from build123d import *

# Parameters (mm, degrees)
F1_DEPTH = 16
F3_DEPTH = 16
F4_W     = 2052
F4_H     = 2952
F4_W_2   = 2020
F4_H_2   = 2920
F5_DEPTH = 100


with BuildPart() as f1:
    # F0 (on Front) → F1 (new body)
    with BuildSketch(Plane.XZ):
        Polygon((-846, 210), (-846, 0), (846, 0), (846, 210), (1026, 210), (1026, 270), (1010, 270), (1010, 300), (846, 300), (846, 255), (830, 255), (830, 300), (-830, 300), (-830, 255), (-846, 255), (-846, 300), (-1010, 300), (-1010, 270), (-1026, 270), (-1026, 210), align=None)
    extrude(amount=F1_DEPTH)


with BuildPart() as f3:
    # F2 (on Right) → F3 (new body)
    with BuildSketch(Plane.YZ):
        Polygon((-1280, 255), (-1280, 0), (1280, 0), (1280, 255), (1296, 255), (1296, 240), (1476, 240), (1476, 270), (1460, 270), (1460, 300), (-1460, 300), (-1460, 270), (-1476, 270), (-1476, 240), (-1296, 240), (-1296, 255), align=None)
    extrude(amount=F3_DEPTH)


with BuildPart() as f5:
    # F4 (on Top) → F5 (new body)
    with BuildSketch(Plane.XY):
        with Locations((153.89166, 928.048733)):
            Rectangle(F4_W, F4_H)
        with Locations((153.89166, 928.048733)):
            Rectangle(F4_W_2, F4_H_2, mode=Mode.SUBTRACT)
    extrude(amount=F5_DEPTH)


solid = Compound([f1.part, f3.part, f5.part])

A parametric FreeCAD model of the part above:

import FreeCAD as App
import Part
import Sketcher
Q = App.Units.Quantity


def add_polygon(sketch, points):
    """Adds a closed chain of lines whose ends are joined by coincident constraints."""
    first, n = sketch.GeometryCount, len(points)
    for a, b in zip(points, points[1:] + points[:1]):
        sketch.addGeometry(Part.LineSegment(App.Vector(*a, 0), App.Vector(*b, 0)), False)
    for i in range(n):
        sketch.addConstraint(Sketcher.Constraint("Coincident", first + i, 2, first + (i + 1) % n, 1))

doc = App.newDocument("Part")
body = doc.addObject("PartDesign::Body", "Body")

# Sketch on XZ plane
sketch1 = body.newObject("Sketcher::SketchObject", "Sketch")
sketch1.AttachmentSupport = (doc.getObject("XZ_Plane"), [""])
sketch1.MapMode = "FlatFace"
add_polygon(sketch1, [(-846, 210), (-846, 0), (846, 0), (846, 210), (1026, 210), (1026, 270), (1010, 270), (1010, 300), (846, 300), (846, 255), (830, 255), (830, 300), (-830, 300), (-830, 255), (-846, 255), (-846, 300), (-1010, 300), (-1010, 270), (-1026, 270), (-1026, 210)])  # lines 0-19
sketch1.addConstraint([
    Sketcher.Constraint("Vertical", 0),
    Sketcher.Constraint("Horizontal", 1),
    Sketcher.Constraint("Vertical", 2),
    Sketcher.Constraint("Horizontal", 3),
    Sketcher.Constraint("Vertical", 4),
    Sketcher.Constraint("Horizontal", 5),
    Sketcher.Constraint("Vertical", 6),
    Sketcher.Constraint("Horizontal", 7),
    Sketcher.Constraint("Vertical", 8),
    Sketcher.Constraint("Horizontal", 9),
    Sketcher.Constraint("Vertical", 10),
    Sketcher.Constraint("Horizontal", 11),
    Sketcher.Constraint("Vertical", 12),
    Sketcher.Constraint("Horizontal", 13),
    Sketcher.Constraint("Vertical", 14),
    Sketcher.Constraint("Horizontal", 15),
    Sketcher.Constraint("Vertical", 16),
    Sketcher.Constraint("Horizontal", 17),
    Sketcher.Constraint("Vertical", 18),
    Sketcher.Constraint("Horizontal", 19),
    Sketcher.Constraint("Symmetric", 0, 2, 1, 2, -1, 1),
    Sketcher.Constraint("Symmetric", 9, 2, 12, 2, -2),
    Sketcher.Constraint("Symmetric", 7, 2, 14, 2, -2),
    Sketcher.Constraint("Symmetric", 5, 2, 16, 2, -2),
    Sketcher.Constraint("Symmetric", 3, 2, 18, 2, -2),
    Sketcher.Constraint("Horizontal", 7, 2, 10, 2),
    Sketcher.Constraint("Vertical", 2, 2, 7, 2),
    Sketcher.Constraint("Equal", 5, 9),
    Sketcher.Constraint("DistanceX", 1, 1, 1, 2, Q("1692 mm")),
    Sketcher.Constraint("DistanceX", 3, 1, 3, 2, Q("180 mm")),
    Sketcher.Constraint("DistanceX", 5, 2, 5, 1, Q("16 mm")),
    Sketcher.Constraint("DistanceY", 0, 2, 0, 1, Q("210 mm")),
    Sketcher.Constraint("DistanceY", 4, 1, 4, 2, Q("60 mm")),
    Sketcher.Constraint("DistanceY", 6, 1, 6, 2, Q("30 mm")),
    Sketcher.Constraint("DistanceY", 8, 2, 8, 1, Q("45 mm")),
])
pad1 = body.newObject("PartDesign::Pad", "Pad")
pad1.Profile = sketch1
pad1.Length = 16
body2 = doc.addObject("PartDesign::Body", "Body001")

# Sketch on YZ plane
sketch2 = body2.newObject("Sketcher::SketchObject", "Sketch001")
sketch2.AttachmentSupport = (doc.getObject("YZ_Plane001"), [""])
sketch2.MapMode = "FlatFace"
add_polygon(sketch2, [(-1280, 255), (-1280, 0), (1280, 0), (1280, 255), (1296, 255), (1296, 240), (1476, 240), (1476, 270), (1460, 270), (1460, 300), (-1460, 300), (-1460, 270), (-1476, 270), (-1476, 240), (-1296, 240), (-1296, 255)])  # lines 0-15
sketch2.addConstraint([
    Sketcher.Constraint("Vertical", 0),
    Sketcher.Constraint("Horizontal", 1),
    Sketcher.Constraint("Vertical", 2),
    Sketcher.Constraint("Horizontal", 3),
    Sketcher.Constraint("Vertical", 4),
    Sketcher.Constraint("Horizontal", 5),
    Sketcher.Constraint("Vertical", 6),
    Sketcher.Constraint("Horizontal", 7),
    Sketcher.Constraint("Vertical", 8),
    Sketcher.Constraint("Horizontal", 9),
    Sketcher.Constraint("Vertical", 10),
    Sketcher.Constraint("Horizontal", 11),
    Sketcher.Constraint("Vertical", 12),
    Sketcher.Constraint("Horizontal", 13),
    Sketcher.Constraint("Vertical", 14),
    Sketcher.Constraint("Horizontal", 15),
    Sketcher.Constraint("Symmetric", 0, 2, 1, 2, -1, 1),
    Sketcher.Constraint("Symmetric", 7, 2, 10, 2, -2),
    Sketcher.Constraint("Symmetric", 5, 2, 12, 2, -2),
    Sketcher.Constraint("Symmetric", 3, 2, 14, 2, -2),
    Sketcher.Constraint("Equal", 3, 7),
    Sketcher.Constraint("Equal", 6, 8),
    Sketcher.Constraint("DistanceX", 1, 1, 1, 2, Q("2560 mm")),
    Sketcher.Constraint("DistanceX", 3, 1, 3, 2, Q("16 mm")),
    Sketcher.Constraint("DistanceX", 5, 1, 5, 2, Q("180 mm")),
    Sketcher.Constraint("DistanceY", 0, 2, 0, 1, Q("255 mm")),
    Sketcher.Constraint("DistanceY", 4, 2, 4, 1, Q("15 mm")),
    Sketcher.Constraint("DistanceY", 6, 1, 6, 2, Q("30 mm")),
])
pad2 = body2.newObject("PartDesign::Pad", "Pad001")
pad2.Profile = sketch2
pad2.Length = 16
body3 = doc.addObject("PartDesign::Body", "Body002")

# Sketch on XY plane
sketch3 = body3.newObject("Sketcher::SketchObject", "Sketch002")
sketch3.AttachmentSupport = (doc.getObject("XY_Plane002"), [""])
sketch3.MapMode = "FlatFace"
add_polygon(sketch3, [(-872, 2404), (-872, -548), (1180, -548), (1180, 2404)])  # lines 0-3
add_polygon(sketch3, [(1164, -532), (-856, -532), (-856, 2388), (1164, 2388)])  # lines 4-7
sketch3.addConstraint([
    Sketcher.Constraint("Vertical", 0),
    Sketcher.Constraint("Horizontal", 1),
    Sketcher.Constraint("Vertical", 2),
    Sketcher.Constraint("Horizontal", 3),
    Sketcher.Constraint("Horizontal", 4),
    Sketcher.Constraint("Vertical", 5),
    Sketcher.Constraint("Horizontal", 6),
    Sketcher.Constraint("Vertical", 7),
    Sketcher.Constraint("DistanceX", 1, 1, 1, 2, Q("2052 mm")),
    Sketcher.Constraint("DistanceX", 4, 2, 4, 1, Q("2020 mm")),
    Sketcher.Constraint("DistanceY", 0, 2, 0, 1, Q("2952 mm")),
    Sketcher.Constraint("DistanceY", 5, 1, 5, 2, Q("2920 mm")),
    Sketcher.Constraint("DistanceX", 0, 2, 4, 2, Q("16 mm")),
    Sketcher.Constraint("DistanceY", 0, 2, 4, 2, Q("16 mm")),
    Sketcher.Constraint("DistanceX", 0, 2, -1, 1, Q("872.10834 mm")),
    Sketcher.Constraint("DistanceY", 0, 2, -1, 1, Q("547.951267 mm")),
])
pad3 = body3.newObject("PartDesign::Pad", "Pad002")
pad3.Profile = sketch3
pad3.Length = 100

doc.recompute()
